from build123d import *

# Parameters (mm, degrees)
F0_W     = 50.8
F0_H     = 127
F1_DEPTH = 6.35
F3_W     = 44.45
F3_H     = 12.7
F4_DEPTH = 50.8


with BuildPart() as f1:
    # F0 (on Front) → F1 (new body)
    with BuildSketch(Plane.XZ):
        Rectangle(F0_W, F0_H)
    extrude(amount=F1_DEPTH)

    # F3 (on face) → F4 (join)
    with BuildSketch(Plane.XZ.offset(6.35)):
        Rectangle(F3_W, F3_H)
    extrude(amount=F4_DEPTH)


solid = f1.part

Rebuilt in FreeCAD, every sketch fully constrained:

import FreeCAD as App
import Part
import Sketcher
from FreeCAD import Vector
Q = App.Units.Quantity

doc = App.newDocument("Part")
body = doc.addObject("PartDesign::Body", "Body")

# Sketch on XZ plane
sketch1 = body.newObject("Sketcher::SketchObject", "Sketch")
sketch1.AttachmentSupport = (doc.getObject("XZ_Plane"), [""])
sketch1.MapMode = "FlatFace"
sketch1.addGeometry([
    Part.LineSegment(Vector(-25, 64, 0), Vector(-25, -64, 0)),
    Part.LineSegment(Vector(-25, -64, 0), Vector(25, -64, 0)),
    Part.LineSegment(Vector(25, -64, 0), Vector(25, 64, 0)),
    Part.LineSegment(Vector(25, 64, 0), Vector(-25, 64, 0)),
], False)
sketch1.addConstraint([
    Sketcher.Constraint("Coincident", 0, 2, 1, 1),
    Sketcher.Constraint("Coincident", 1, 2, 2, 1),
    Sketcher.Constraint("Coincident", 2, 2, 3, 1),
    Sketcher.Constraint("Coincident", 3, 2, 0, 1),
    Sketcher.Constraint("Vertical", 0),
    Sketcher.Constraint("Horizontal", 1),
    Sketcher.Constraint("Vertical", 2),
    Sketcher.Constraint("Horizontal", 3),
    Sketcher.Constraint("Symmetric", 0, 2, 2, 2, -1, 1),
    Sketcher.Constraint("DistanceX", 1, 1, 1, 2, Q("2 in")),
    Sketcher.Constraint("DistanceY", 0, 2, 0, 1, Q("5 in")),
])
pad1 = body.newObject("PartDesign::Pad", "Pad")
pad1.Profile = sketch1
pad1.Length = Q("0.25 in")

# Sketch on XZ plane
sketch2 = body.newObject("Sketcher::SketchObject", "Sketch001")
sketch2.AttachmentSupport = (doc.getObject("XZ_Plane"), [""])
sketch2.MapMode = "FlatFace"
sketch2.AttachmentOffset = App.Placement(Vector(0, 0, 0.25 * 25.4), App.Rotation())
sketch2.addGeometry([
    Part.LineSegment(Vector(-22, 6, 0), Vector(-22, -6, 0)),
    Part.LineSegment(Vector(-22, -6, 0), Vector(22, -6, 0)),
    Part.LineSegment(Vector(22, -6, 0), Vector(22, 6, 0)),
    Part.LineSegment(Vector(22, 6, 0), Vector(-22, 6, 0)),
], False)
sketch2.addConstraint([
    Sketcher.Constraint("Coincident", 0, 2, 1, 1),
    Sketcher.Constraint("Coincident", 1, 2, 2, 1),
    Sketcher.Constraint("Coincident", 2, 2, 3, 1),
    Sketcher.Constraint("Coincident", 3, 2, 0, 1),
    Sketcher.Constraint("Vertical", 0),
    Sketcher.Constraint("Horizontal", 1),
    Sketcher.Constraint("Vertical", 2),
    Sketcher.Constraint("Horizontal", 3),
    Sketcher.Constraint("Symmetric", 0, 2, 2, 2, -1, 1),
    Sketcher.Constraint("DistanceY", 0, 2, 0, 1, Q("0.5 in")),
    Sketcher.Constraint("DistanceX", 1, 1, 1, 2, Q("1.75 in")),
])
pad2 = body.newObject("PartDesign::Pad", "Pad001")
pad2.Profile = sketch2
pad2.Length = Q("2 in")

doc.recompute()
